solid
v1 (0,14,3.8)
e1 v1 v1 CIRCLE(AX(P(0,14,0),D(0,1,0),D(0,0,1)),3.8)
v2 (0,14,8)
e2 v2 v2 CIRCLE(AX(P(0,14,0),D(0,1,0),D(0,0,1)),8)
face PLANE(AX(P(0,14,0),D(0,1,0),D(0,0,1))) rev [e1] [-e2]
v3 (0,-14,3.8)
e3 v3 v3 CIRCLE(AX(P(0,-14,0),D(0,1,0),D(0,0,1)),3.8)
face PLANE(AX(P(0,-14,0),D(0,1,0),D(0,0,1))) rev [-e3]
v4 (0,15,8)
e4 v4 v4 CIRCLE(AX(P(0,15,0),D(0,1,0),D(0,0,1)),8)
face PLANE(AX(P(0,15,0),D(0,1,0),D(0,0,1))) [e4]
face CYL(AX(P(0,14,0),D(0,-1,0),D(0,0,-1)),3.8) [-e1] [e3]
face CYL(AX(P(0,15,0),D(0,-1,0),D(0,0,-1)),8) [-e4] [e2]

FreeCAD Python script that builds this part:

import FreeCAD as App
import Part
import Sketcher
from FreeCAD import Vector
Q = App.Units.Quantity

doc = App.newDocument("Part")
body = doc.addObject("PartDesign::Body", "Body")

sketch1 = body.newObject("Sketcher::SketchObject", "Sketch")
sketch1.AttachmentSupport = (doc.getObject("XZ_Plane"), [""])
sketch1.MapMode = "FlatFace"
sketch1.addGeometry(Part.Circle(Vector(0, 0, 0), Vector(0, 0, 1), 3.8), False)
sketch1.addConstraint(Sketcher.Constraint("Coincident", 0, 3, -1, 1))
sketch1.addConstraint(Sketcher.Constraint("Diameter", 0, Q("7.6 mm")))
pad1 = body.newObject("PartDesign::Pad", "Pad")
pad1.Profile = sketch1
pad1.Length = 28
pad1.Midplane = True

sketch2 = body.newObject("Sketcher::SketchObject", "Sketch001")
sketch2.AttachmentSupport = (doc.getObject("XZ_Plane"), [""])
sketch2.MapMode = "FlatFace"
sketch2.AttachmentOffset = App.Placement(Vector(0, 0, -14), App.Rotation())
sketch2.addGeometry(Part.Circle(Vector(0, 0, 0), Vector(0, 0, 1), 8), False)
sketch2.addConstraint(Sketcher.Constraint("Coincident", 0, 3, -1, 1))
sketch2.addConstraint(Sketcher.Constraint("Diameter", 0, Q("16 mm")))
pad2 = body.newObject("PartDesign::Pad", "Pad001")
pad2.Profile = sketch2
pad2.Length = 1
pad2.Reversed = True

doc.recompute()
